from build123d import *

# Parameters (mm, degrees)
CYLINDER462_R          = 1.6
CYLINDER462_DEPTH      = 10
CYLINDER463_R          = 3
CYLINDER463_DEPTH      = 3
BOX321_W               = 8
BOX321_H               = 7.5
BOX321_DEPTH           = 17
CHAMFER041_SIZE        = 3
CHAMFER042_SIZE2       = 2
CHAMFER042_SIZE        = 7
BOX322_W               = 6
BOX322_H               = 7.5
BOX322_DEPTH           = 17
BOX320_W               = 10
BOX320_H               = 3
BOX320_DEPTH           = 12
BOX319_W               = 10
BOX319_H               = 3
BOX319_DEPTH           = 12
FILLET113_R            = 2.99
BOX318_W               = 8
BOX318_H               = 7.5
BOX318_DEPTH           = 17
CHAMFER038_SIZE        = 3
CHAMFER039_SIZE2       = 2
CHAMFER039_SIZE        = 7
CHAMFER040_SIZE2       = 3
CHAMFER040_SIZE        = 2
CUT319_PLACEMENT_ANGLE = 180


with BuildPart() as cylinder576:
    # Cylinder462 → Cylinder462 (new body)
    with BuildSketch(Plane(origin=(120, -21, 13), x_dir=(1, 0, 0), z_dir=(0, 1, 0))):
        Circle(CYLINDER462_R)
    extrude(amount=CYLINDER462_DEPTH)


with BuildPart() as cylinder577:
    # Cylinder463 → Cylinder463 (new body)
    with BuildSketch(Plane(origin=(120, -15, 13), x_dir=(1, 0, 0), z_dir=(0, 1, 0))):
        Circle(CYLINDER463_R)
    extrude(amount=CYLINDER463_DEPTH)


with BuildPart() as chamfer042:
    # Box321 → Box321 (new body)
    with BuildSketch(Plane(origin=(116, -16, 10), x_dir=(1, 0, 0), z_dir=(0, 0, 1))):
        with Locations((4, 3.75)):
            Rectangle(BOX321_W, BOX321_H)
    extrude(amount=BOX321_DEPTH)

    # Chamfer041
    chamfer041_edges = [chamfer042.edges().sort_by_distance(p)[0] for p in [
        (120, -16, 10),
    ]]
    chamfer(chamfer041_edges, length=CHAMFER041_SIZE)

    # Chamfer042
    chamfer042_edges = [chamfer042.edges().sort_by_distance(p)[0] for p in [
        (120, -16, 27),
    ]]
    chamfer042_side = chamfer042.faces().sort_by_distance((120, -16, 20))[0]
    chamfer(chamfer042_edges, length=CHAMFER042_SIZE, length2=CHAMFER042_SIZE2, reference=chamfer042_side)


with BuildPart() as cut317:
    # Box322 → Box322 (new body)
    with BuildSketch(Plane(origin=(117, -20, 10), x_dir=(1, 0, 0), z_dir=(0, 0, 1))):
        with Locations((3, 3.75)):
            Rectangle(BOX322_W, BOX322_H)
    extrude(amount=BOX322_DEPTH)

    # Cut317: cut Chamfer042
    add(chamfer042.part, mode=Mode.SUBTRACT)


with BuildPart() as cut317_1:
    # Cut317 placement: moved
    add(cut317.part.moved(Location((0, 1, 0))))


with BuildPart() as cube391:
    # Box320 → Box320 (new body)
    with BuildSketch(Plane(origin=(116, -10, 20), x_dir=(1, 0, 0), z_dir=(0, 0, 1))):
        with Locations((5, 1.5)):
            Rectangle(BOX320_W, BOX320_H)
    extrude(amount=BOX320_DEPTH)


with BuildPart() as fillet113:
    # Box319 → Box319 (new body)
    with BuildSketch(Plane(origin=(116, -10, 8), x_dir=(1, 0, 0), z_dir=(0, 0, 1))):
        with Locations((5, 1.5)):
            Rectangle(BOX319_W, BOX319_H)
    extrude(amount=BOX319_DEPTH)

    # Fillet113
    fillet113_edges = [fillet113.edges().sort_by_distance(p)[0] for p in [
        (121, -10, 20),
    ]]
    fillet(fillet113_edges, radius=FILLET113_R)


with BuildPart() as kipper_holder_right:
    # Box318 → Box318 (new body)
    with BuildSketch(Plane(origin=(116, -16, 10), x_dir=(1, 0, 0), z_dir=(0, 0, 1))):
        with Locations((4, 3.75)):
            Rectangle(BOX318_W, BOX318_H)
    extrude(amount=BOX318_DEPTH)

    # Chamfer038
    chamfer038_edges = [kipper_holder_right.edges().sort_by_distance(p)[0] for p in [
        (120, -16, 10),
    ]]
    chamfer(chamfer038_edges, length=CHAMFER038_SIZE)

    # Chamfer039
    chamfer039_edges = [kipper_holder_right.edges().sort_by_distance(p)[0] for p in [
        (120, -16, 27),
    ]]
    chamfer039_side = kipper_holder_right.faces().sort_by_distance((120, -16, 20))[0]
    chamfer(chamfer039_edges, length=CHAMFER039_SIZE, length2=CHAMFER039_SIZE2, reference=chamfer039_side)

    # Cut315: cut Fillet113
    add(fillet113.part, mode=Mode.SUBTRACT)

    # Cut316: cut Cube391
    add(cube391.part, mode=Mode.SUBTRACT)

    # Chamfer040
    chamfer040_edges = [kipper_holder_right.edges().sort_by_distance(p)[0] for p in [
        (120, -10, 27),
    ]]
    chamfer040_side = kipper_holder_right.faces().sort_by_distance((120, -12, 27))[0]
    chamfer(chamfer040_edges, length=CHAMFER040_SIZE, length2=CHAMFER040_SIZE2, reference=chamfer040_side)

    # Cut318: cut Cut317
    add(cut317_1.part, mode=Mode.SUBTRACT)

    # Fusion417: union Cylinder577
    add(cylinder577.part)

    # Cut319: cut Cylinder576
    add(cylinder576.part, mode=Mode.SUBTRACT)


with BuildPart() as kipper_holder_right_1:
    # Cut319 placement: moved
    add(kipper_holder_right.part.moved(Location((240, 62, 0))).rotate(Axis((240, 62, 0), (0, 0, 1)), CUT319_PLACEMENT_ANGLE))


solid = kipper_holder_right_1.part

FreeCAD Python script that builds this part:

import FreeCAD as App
import Part
import Sketcher
Q = App.Units.Quantity


def edges_at(feature, points):
    """Names of the edges that pass closest to the given points."""
    edges = feature.Shape.Edges
    near = lambda p: min(range(len(edges)), key=lambda i: edges[i].distToShape(Part.Vertex(*p))[0])
    return sorted({f"Edge{near(p) + 1}" for p in points})


def add_polygon(sketch, points):
    """Adds a closed chain of lines whose ends are joined by coincident constraints."""
    first, n = sketch.GeometryCount, len(points)
    for a, b in zip(points, points[1:] + points[:1]):
        sketch.addGeometry(Part.LineSegment(App.Vector(*a, 0), App.Vector(*b, 0)), False)
    for i in range(n):
        sketch.addConstraint(Sketcher.Constraint("Coincident", first + i, 2, first + (i + 1) % n, 1))

doc = App.newDocument("Part")
body = doc.addObject("PartDesign::Body", "Body")

sketch1 = body.newObject("Sketcher::SketchObject", "Sketch")
sketch1.AttachmentSupport = (doc.getObject("XZ_Plane"), [""])
sketch1.MapMode = "FlatFace"
sketch1.AttachmentOffset = App.Placement(App.Vector(0, 0, 21), App.Rotation())
sketch1.addGeometry(Part.Circle(App.Vector(120, 13, 0), App.Vector(0, 0, 1), 1.6), False)
sketch1.addConstraint([
    Sketcher.Constraint("Diameter", 0, Q("3.2 mm")),
    Sketcher.Constraint("DistanceX", -1, 1, 0, 3, Q("120 mm")),
    Sketcher.Constraint("DistanceY", -1, 1, 0, 3, Q("13 mm")),
])
pad1 = body.newObject("PartDesign::Pad", "Pad")
pad1.Profile = sketch1
pad1.Length = 10
pad1.Reversed = True
body2 = doc.addObject("PartDesign::Body", "Body001")

sketch2 = body2.newObject("Sketcher::SketchObject", "Sketch001")
sketch2.AttachmentSupport = (doc.getObject("XZ_Plane001"), [""])
sketch2.MapMode = "FlatFace"
sketch2.AttachmentOffset = App.Placement(App.Vector(0, 0, 15), App.Rotation())
sketch2.addGeometry(Part.Circle(App.Vector(120, 13, 0), App.Vector(0, 0, 1), 3), False)
sketch2.addConstraint([
    Sketcher.Constraint("Diameter", 0, Q("6 mm")),
    Sketcher.Constraint("DistanceX", -1, 1, 0, 3, Q("120 mm")),
    Sketcher.Constraint("DistanceY", -1, 1, 0, 3, Q("13 mm")),
])
pad2 = body2.newObject("PartDesign::Pad", "Pad001")
pad2.Profile = sketch2
pad2.Length = 3
pad2.Reversed = True
body3 = doc.addObject("PartDesign::Body", "Body002")

sketch3 = body3.newObject("Sketcher::SketchObject", "Sketch002")
sketch3.AttachmentSupport = (doc.getObject("XY_Plane002"), [""])
sketch3.MapMode = "FlatFace"
sketch3.AttachmentOffset = App.Placement(App.Vector(0, 0, 10), App.Rotation())
add_polygon(sketch3, [(116, -8), (116, -16), (124, -16), (124, -8)])
sketch3.addConstraint([
    Sketcher.Constraint("Vertical", 0),
    Sketcher.Constraint("Horizontal", 1),
    Sketcher.Constraint("Vertical", 2),
    Sketcher.Constraint("Horizontal", 3),
    Sketcher.Constraint("DistanceX", 1, 1, 1, 2, Q("8 mm")),
    Sketcher.Constraint("DistanceY", 0, 2, 0, 1, Q("7.5 mm")),
    Sketcher.Constraint("DistanceX", -1, 1, 0, 2, Q("116 mm")),
    Sketcher.Constraint("DistanceY", 0, 2, -1, 1, Q("16 mm")),
])
pad3 = body3.newObject("PartDesign::Pad", "Pad002")
pad3.Profile = sketch3
pad3.Length = 17
doc.recompute()

chamfer = body3.newObject("PartDesign::Chamfer", "Chamfer")
chamfer.Base = (pad3, edges_at(pad3, [(120, -16, 10)]))
chamfer.Size = 3
doc.recompute()

chamfer2 = body3.newObject("PartDesign::Chamfer", "Chamfer001")
chamfer2.Base = (chamfer, edges_at(chamfer, [(120, -16, 27)]))
chamfer2.ChamferType = "Two distances"
chamfer2.Size = 7
chamfer2.Size2 = 2
body4 = doc.addObject("PartDesign::Body", "Body003")

sketch4 = body4.newObject("Sketcher::SketchObject", "Sketch003")
sketch4.AttachmentSupport = (doc.getObject("XY_Plane003"), [""])
sketch4.MapMode = "FlatFace"
sketch4.AttachmentOffset = App.Placement(App.Vector(0, 0, 10), App.Rotation())
add_polygon(sketch4, [(117, -12), (117, -20), (123, -20), (123, -12)])
sketch4.addConstraint([
    Sketcher.Constraint("Vertical", 0),
    Sketcher.Constraint("Horizontal", 1),
    Sketcher.Constraint("Vertical", 2),
    Sketcher.Constraint("Horizontal", 3),
    Sketcher.Constraint("DistanceX", 1, 1, 1, 2, Q("6 mm")),
    Sketcher.Constraint("DistanceY", 0, 2, 0, 1, Q("7.5 mm")),
    Sketcher.Constraint("DistanceX", -1, 1, 0, 2, Q("117 mm")),
    Sketcher.Constraint("DistanceY", 0, 2, -1, 1, Q("20 mm")),
])
pad4 = body4.newObject("PartDesign::Pad", "Pad003")
pad4.Profile = sketch4
pad4.Length = 17
doc.recompute()

boolean = body4.newObject("PartDesign::Boolean", "Boolean")
boolean.Type = "Cut"
boolean.addObjects([body3])
body5 = doc.addObject("PartDesign::Body", "Body004")
doc.recompute()

body4.Placement = App.Placement(App.Vector(0, 1, 0), App.Rotation(App.Vector(0, 0, 1), 0))
boolean2 = body5.newObject("PartDesign::Boolean", "Boolean001")
boolean2.Type = "Fuse"
boolean2.addObjects([body4])
body6 = doc.addObject("PartDesign::Body", "Body005")

sketch5 = body6.newObject("Sketcher::SketchObject", "Sketch004")
sketch5.AttachmentSupport = (doc.getObject("XY_Plane005"), [""])
sketch5.MapMode = "FlatFace"
sketch5.AttachmentOffset = App.Placement(App.Vector(0, 0, 20), App.Rotation())
add_polygon(sketch5, [(116, -7), (116, -10), (126, -10), (126, -7)])
sketch5.addConstraint([
    Sketcher.Constraint("Vertical", 0),
    Sketcher.Constraint("Horizontal", 1),
    Sketcher.Constraint("Vertical", 2),
    Sketcher.Constraint("Horizontal", 3),
    Sketcher.Constraint("DistanceX", 1, 1, 1, 2, Q("10 mm")),
    Sketcher.Constraint("DistanceY", 0, 2, 0, 1, Q("3 mm")),
    Sketcher.Constraint("DistanceX", -1, 1, 0, 2, Q("116 mm")),
    Sketcher.Constraint("DistanceY", 0, 2, -1, 1, Q("10 mm")),
])
pad5 = body6.newObject("PartDesign::Pad", "Pad004")
pad5.Profile = sketch5
pad5.Length = 12
body7 = doc.addObject("PartDesign::Body", "Body006")

sketch6 = body7.newObject("Sketcher::SketchObject", "Sketch005")
sketch6.AttachmentSupport = (doc.getObject("XY_Plane006"), [""])
sketch6.MapMode = "FlatFace"
sketch6.AttachmentOffset = App.Placement(App.Vector(0, 0, 8), App.Rotation())
add_polygon(sketch6, [(116, -7), (116, -10), (126, -10), (126, -7)])
sketch6.addConstraint([
    Sketcher.Constraint("Vertical", 0),
    Sketcher.Constraint("Horizontal", 1),
    Sketcher.Constraint("Vertical", 2),
    Sketcher.Constraint("Horizontal", 3),
    Sketcher.Constraint("DistanceX", 1, 1, 1, 2, Q("10 mm")),
    Sketcher.Constraint("DistanceY", 0, 2, 0, 1, Q("3 mm")),
    Sketcher.Constraint("DistanceX", -1, 1, 0, 2, Q("116 mm")),
    Sketcher.Constraint("DistanceY", 0, 2, -1, 1, Q("10 mm")),
])
pad6 = body7.newObject("PartDesign::Pad", "Pad005")
pad6.Profile = sketch6
pad6.Length = 12
doc.recompute()

fillet = body7.newObject("PartDesign::Fillet", "Fillet")
fillet.Base = (pad6, edges_at(pad6, [(121, -10, 20)]))
fillet.Radius = 2.99
body8 = doc.addObject("PartDesign::Body", "Body007")

sketch7 = body8.newObject("Sketcher::SketchObject", "Sketch006")
sketch7.AttachmentSupport = (doc.getObject("XY_Plane007"), [""])
sketch7.MapMode = "FlatFace"
sketch7.AttachmentOffset = App.Placement(App.Vector(0, 0, 10), App.Rotation())
add_polygon(sketch7, [(116, -8), (116, -16), (124, -16), (124, -8)])
sketch7.addConstraint([
    Sketcher.Constraint("Vertical", 0),
    Sketcher.Constraint("Horizontal", 1),
    Sketcher.Constraint("Vertical", 2),
    Sketcher.Constraint("Horizontal", 3),
    Sketcher.Constraint("DistanceX", 1, 1, 1, 2, Q("8 mm")),
    Sketcher.Constraint("DistanceY", 0, 2, 0, 1, Q("7.5 mm")),
    Sketcher.Constraint("DistanceX", -1, 1, 0, 2, Q("116 mm")),
    Sketcher.Constraint("DistanceY", 0, 2, -1, 1, Q("16 mm")),
])
pad7 = body8.newObject("PartDesign::Pad", "Pad006")
pad7.Profile = sketch7
pad7.Length = 17
doc.recompute()

chamfer3 = body8.newObject("PartDesign::Chamfer", "Chamfer002")
chamfer3.Base = (pad7, edges_at(pad7, [(120, -16, 10)]))
chamfer3.Size = 3
doc.recompute()

chamfer4 = body8.newObject("PartDesign::Chamfer", "Chamfer003")
chamfer4.Base = (chamfer3, edges_at(chamfer3, [(120, -16, 27)]))
chamfer4.ChamferType = "Two distances"
chamfer4.Size = 7
chamfer4.Size2 = 2
doc.recompute()

boolean3 = body8.newObject("PartDesign::Boolean", "Boolean002")
boolean3.Type = "Cut"
boolean3.addObjects([body7])
doc.recompute()

boolean4 = body8.newObject("PartDesign::Boolean", "Boolean003")
boolean4.Type = "Cut"
boolean4.addObjects([body6])
doc.recompute()

chamfer5 = body8.newObject("PartDesign::Chamfer", "Chamfer004")
chamfer5.Base = (boolean4, edges_at(boolean4, [(120, -10, 27)]))
chamfer5.ChamferType = "Two distances"
chamfer5.Size = 2
chamfer5.Size2 = 3
doc.recompute()

boolean5 = body8.newObject("PartDesign::Boolean", "Boolean004")
boolean5.Type = "Cut"
boolean5.addObjects([body5])
doc.recompute()

boolean6 = body8.newObject("PartDesign::Boolean", "Boolean005")
boolean6.Type = "Fuse"
boolean6.addObjects([body2])
doc.recompute()

boolean7 = body8.newObject("PartDesign::Boolean", "Boolean006")
boolean7.Type = "Cut"
boolean7.addObjects([body])
body9 = doc.addObject("PartDesign::Body", "Body008")
doc.recompute()

body8.Placement = App.Placement(App.Vector(240, 62, 0), App.Rotation(App.Vector(0, 0, 1), 180))
boolean8 = body9.newObject("PartDesign::Boolean", "Boolean007")
boolean8.Type = "Fuse"
boolean8.addObjects([body8])

doc.recompute()
